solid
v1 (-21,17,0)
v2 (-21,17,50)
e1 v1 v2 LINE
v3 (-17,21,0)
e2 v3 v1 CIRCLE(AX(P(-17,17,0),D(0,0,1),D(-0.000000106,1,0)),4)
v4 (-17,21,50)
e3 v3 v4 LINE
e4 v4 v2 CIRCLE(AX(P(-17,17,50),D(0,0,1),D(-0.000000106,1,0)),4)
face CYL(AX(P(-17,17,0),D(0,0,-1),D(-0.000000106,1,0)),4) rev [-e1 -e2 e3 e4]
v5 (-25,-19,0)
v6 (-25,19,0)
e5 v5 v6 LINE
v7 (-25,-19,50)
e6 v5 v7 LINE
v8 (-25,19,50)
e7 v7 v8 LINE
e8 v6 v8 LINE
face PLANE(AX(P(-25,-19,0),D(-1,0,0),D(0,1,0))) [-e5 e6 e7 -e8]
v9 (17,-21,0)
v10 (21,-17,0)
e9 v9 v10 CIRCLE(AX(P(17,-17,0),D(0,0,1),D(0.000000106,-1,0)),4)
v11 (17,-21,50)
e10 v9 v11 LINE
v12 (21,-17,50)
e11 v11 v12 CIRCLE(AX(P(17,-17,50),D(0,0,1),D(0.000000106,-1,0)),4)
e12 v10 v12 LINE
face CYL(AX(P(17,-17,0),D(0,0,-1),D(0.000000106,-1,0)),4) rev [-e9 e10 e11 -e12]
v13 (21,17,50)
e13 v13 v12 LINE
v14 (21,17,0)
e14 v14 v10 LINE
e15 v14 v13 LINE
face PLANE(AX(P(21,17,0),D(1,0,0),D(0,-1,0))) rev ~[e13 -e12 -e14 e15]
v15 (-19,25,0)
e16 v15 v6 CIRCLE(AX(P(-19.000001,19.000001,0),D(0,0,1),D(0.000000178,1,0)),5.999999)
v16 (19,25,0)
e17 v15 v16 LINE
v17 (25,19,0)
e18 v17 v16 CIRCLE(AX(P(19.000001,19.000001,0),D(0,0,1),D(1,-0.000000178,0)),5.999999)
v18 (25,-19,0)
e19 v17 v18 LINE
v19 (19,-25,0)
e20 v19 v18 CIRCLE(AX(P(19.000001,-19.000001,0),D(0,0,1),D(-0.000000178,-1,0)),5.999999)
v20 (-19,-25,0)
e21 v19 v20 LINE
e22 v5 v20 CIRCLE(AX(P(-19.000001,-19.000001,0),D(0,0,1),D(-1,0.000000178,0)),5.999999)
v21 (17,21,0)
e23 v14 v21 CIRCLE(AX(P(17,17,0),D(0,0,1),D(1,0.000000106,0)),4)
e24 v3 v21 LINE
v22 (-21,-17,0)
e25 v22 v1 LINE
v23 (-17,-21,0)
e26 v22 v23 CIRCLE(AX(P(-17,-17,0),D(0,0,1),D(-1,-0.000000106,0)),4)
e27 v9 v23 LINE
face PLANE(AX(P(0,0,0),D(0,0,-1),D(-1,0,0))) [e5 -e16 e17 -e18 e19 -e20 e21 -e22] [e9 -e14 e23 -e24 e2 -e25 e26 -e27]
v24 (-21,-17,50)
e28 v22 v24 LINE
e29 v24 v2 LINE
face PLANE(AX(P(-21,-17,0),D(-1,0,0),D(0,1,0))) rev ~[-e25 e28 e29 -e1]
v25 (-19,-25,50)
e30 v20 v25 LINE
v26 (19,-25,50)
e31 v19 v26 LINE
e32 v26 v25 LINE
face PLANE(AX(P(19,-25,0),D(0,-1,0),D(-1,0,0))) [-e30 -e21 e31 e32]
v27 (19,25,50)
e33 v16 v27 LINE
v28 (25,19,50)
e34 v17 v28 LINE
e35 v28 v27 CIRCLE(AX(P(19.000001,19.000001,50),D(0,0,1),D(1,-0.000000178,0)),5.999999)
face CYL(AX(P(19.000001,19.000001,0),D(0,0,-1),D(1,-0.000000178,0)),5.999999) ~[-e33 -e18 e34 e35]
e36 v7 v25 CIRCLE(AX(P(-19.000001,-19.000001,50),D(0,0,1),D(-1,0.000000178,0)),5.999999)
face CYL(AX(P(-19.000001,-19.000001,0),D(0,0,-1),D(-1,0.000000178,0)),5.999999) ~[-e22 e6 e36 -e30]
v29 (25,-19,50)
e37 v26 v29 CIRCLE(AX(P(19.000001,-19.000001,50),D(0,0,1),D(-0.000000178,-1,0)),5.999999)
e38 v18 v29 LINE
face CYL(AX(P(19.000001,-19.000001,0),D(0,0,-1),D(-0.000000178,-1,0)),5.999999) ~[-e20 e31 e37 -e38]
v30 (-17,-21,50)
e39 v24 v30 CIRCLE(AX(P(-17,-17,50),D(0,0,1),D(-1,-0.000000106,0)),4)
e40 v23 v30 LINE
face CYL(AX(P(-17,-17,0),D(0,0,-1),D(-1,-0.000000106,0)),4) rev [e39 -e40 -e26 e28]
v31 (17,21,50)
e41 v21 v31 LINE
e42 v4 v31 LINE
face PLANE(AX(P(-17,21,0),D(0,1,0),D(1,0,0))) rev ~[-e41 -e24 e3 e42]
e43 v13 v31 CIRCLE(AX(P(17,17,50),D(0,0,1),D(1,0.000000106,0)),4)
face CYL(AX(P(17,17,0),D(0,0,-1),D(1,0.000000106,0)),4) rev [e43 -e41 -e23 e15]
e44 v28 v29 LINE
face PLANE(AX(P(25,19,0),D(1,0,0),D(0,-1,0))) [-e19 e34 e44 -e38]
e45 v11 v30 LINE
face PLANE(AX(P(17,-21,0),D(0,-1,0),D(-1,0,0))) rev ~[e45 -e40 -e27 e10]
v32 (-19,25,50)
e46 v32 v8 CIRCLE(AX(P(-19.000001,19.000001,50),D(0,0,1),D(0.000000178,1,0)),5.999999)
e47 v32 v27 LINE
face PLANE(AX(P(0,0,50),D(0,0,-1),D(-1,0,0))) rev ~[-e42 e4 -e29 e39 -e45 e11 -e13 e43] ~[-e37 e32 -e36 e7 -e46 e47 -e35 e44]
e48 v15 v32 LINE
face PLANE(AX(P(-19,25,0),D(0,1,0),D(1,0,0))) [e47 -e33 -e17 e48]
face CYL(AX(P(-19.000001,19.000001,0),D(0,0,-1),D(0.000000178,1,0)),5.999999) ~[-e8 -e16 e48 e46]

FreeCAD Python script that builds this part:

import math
import FreeCAD as App
import Part
import Sketcher
from FreeCAD import Vector
Q = App.Units.Quantity

doc = App.newDocument("Part")
body = doc.addObject("PartDesign::Body", "Body")

# Sketch on XY plane
sketch1 = body.newObject("Sketcher::SketchObject", "Sketch")
sketch1.AttachmentSupport = (doc.getObject("XY_Plane"), [""])
sketch1.MapMode = "FlatFace"
sketch1.addGeometry(Part.LineSegment(Vector(19, 25, 0), Vector(-19, 25, 0)), False)
sketch1.addGeometry(Part.ArcOfCircle(Part.Circle(Vector(-19.000001, 19.000001, 0), Vector(0, 0, 1), 5.999999), math.radians(89.99999), math.radians(180.00001)), False)
sketch1.addGeometry(Part.LineSegment(Vector(-25, 19, 0), Vector(-25, -19, 0)), False)
sketch1.addGeometry(Part.ArcOfCircle(Part.Circle(Vector(-19.000001, -19.000001, 0), Vector(0, 0, 1), 5.999999), math.radians(179.99999), math.radians(270.00001)), False)
sketch1.addGeometry(Part.LineSegment(Vector(-19, -25, 0), Vector(19, -25, 0)), False)
sketch1.addGeometry(Part.ArcOfCircle(Part.Circle(Vector(19.000001, -19.000001, 0), Vector(0, 0, 1), 5.999999), math.radians(-90.00001), math.radians(0.00001)), False)
sketch1.addGeometry(Part.LineSegment(Vector(25, -19, 0), Vector(25, 19, 0)), False)
sketch1.addGeometry(Part.ArcOfCircle(Part.Circle(Vector(19.000001, 19.000001, 0), Vector(0, 0, 1), 5.999999), math.radians(-0.00001), math.radians(90.00001)), False)
sketch1.addGeometry(Part.LineSegment(Vector(-17, 21, 0), Vector(17, 21, 0)), False)
sketch1.addGeometry(Part.ArcOfCircle(Part.Circle(Vector(17, 17, 0), Vector(0, 0, 1), 4), math.radians(0.000006), math.radians(89.999994)), False)
sketch1.addGeometry(Part.LineSegment(Vector(21, 17, 0), Vector(21, -17, 0)), False)
sketch1.addGeometry(Part.ArcOfCircle(Part.Circle(Vector(17, -17, 0), Vector(0, 0, 1), 4), math.radians(-89.999994), math.radians(-0.000006)), False)
sketch1.addGeometry(Part.LineSegment(Vector(17, -21, 0), Vector(-17, -21, 0)), False)
sketch1.addGeometry(Part.ArcOfCircle(Part.Circle(Vector(-17, -17, 0), Vector(0, 0, 1), 4), math.radians(-179.999994), math.radians(-90.000006)), False)
sketch1.addGeometry(Part.LineSegment(Vector(-21, -17, 0), Vector(-21, 17, 0)), False)
sketch1.addGeometry(Part.ArcOfCircle(Part.Circle(Vector(-17, 17, 0), Vector(0, 0, 1), 4), math.radians(90.000006), math.radians(179.999994)), False)
sketch1.addConstraint(Sketcher.Constraint("Tangent", 0, 2, 1, 1))
sketch1.addConstraint(Sketcher.Constraint("Tangent", 1, 2, 2, 1))
sketch1.addConstraint(Sketcher.Constraint("Tangent", 2, 2, 3, 1))
sketch1.addConstraint(Sketcher.Constraint("Tangent", 3, 2, 4, 1))
sketch1.addConstraint(Sketcher.Constraint("Tangent", 4, 2, 5, 1))
sketch1.addConstraint(Sketcher.Constraint("Tangent", 5, 2, 6, 1))
sketch1.addConstraint(Sketcher.Constraint("Tangent", 6, 2, 7, 1))
sketch1.addConstraint(Sketcher.Constraint("Tangent", 7, 2, 0, 1))
sketch1.addConstraint(Sketcher.Constraint("Tangent", 8, 2, 9, 2))
sketch1.addConstraint(Sketcher.Constraint("Tangent", 9, 1, 10, 1))
sketch1.addConstraint(Sketcher.Constraint("Tangent", 10, 2, 11, 2))
sketch1.addConstraint(Sketcher.Constraint("Tangent", 11, 1, 12, 1))
sketch1.addConstraint(Sketcher.Constraint("Tangent", 12, 2, 13, 2))
sketch1.addConstraint(Sketcher.Constraint("Tangent", 13, 1, 14, 1))
sketch1.addConstraint(Sketcher.Constraint("Tangent", 14, 2, 15, 2))
sketch1.addConstraint(Sketcher.Constraint("Tangent", 15, 1, 8, 1))
sketch1.addConstraint(Sketcher.Constraint("Horizontal", 0))
sketch1.addConstraint(Sketcher.Constraint("Vertical", 2))
sketch1.addConstraint(Sketcher.Constraint("Horizontal", 4))
sketch1.addConstraint(Sketcher.Constraint("Vertical", 6))
sketch1.addConstraint(Sketcher.Constraint("Horizontal", 8))
sketch1.addConstraint(Sketcher.Constraint("Vertical", 10))
sketch1.addConstraint(Sketcher.Constraint("Horizontal", 12))
sketch1.addConstraint(Sketcher.Constraint("Vertical", 14))
sketch1.addConstraint(Sketcher.Constraint("Equal", 1, 3))
sketch1.addConstraint(Sketcher.Constraint("Equal", 3, 5))
sketch1.addConstraint(Sketcher.Constraint("Equal", 5, 7))
sketch1.addConstraint(Sketcher.Constraint("Equal", 9, 11))
sketch1.addConstraint(Sketcher.Constraint("Equal", 11, 13))
sketch1.addConstraint(Sketcher.Constraint("Equal", 13, 15))
sketch1.addConstraint(Sketcher.Constraint("Symmetric", 1, 3, 5, 3, -1, 1))
sketch1.addConstraint(Sketcher.Constraint("Symmetric", 9, 3, 13, 3, -1, 1))
sketch1.addConstraint(Sketcher.Constraint("Equal", 4, 2))
sketch1.addConstraint(Sketcher.Constraint("Equal", 12, 10))
sketch1.addConstraint(Sketcher.Constraint("Radius", 1, Q("5.999999 mm")))
sketch1.addConstraint(Sketcher.Constraint("Radius", 9, Q("4 mm")))
sketch1.addConstraint(Sketcher.Constraint("DistanceX", 0, 2, 0, 1, Q("38 mm")))
sketch1.addConstraint(Sketcher.Constraint("DistanceX", 8, 1, 8, 2, Q("34 mm")))
pad1 = body.newObject("PartDesign::Pad", "Pad")
pad1.Profile = sketch1
pad1.Length = 50

doc.recompute()
